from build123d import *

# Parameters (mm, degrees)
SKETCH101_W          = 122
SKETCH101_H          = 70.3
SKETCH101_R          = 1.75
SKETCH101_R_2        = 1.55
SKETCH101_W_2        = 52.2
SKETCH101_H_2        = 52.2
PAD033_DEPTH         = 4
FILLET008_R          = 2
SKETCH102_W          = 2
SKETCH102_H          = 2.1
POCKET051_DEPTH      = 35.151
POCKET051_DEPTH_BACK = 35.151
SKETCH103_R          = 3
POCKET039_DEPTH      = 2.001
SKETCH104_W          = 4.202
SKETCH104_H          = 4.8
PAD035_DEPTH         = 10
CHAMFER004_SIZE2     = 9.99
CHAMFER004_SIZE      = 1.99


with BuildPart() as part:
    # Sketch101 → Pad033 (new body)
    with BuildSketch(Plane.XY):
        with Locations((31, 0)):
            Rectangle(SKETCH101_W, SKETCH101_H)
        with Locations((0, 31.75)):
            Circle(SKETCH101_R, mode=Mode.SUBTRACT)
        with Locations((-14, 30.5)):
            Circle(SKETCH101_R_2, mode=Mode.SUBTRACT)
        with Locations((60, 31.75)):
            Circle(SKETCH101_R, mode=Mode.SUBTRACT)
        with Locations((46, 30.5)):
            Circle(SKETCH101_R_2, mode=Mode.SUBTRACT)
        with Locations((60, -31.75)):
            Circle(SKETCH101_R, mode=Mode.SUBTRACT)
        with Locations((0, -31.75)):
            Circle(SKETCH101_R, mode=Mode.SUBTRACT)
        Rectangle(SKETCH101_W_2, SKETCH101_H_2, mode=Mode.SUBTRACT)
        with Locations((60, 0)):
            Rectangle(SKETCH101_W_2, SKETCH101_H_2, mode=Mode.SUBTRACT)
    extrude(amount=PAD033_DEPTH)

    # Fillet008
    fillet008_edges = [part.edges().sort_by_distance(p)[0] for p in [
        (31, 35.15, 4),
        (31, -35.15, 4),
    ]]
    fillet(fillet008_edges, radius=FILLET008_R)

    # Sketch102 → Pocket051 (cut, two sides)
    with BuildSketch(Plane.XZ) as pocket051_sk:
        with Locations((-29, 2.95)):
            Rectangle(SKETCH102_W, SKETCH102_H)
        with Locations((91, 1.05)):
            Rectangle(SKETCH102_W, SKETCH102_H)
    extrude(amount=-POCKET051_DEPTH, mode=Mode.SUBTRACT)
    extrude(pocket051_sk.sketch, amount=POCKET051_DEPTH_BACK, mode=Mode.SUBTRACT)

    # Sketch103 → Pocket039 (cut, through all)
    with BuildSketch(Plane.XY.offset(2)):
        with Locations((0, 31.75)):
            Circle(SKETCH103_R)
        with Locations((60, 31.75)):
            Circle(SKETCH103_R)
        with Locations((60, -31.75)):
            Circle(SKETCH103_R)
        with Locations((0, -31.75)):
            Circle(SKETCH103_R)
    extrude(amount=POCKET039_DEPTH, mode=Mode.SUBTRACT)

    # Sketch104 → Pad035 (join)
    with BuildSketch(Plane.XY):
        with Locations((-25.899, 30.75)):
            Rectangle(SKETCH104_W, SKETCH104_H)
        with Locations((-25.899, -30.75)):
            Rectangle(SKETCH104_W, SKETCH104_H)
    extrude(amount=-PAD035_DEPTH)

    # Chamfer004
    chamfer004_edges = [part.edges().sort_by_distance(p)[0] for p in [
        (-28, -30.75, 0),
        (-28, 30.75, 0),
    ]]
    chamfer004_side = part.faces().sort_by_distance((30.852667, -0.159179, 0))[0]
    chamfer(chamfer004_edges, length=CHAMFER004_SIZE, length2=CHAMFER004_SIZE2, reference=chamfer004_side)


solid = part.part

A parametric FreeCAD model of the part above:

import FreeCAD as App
import Part
import Sketcher


def edges_at(feature, points):
    """Names of the edges that pass closest to the given points."""
    edges = feature.Shape.Edges
    near = lambda p: min(range(len(edges)), key=lambda i: edges[i].distToShape(Part.Vertex(*p))[0])
    return sorted({f"Edge{near(p) + 1}" for p in points})

doc = App.newDocument("Part")
body = doc.addObject("PartDesign::Body", "Body")

# Sketch on XY plane
sketch1 = doc.addObject("Sketcher::SketchObject", "Sketch")
body.addObject(sketch1)
sketch1.AttachmentSupport = (doc.XY_Plane, [""])
sketch1.MapMode = "FlatFace"
sketch1.addGeometry([
    Part.LineSegment(App.Vector(-30, 35.1, 0), App.Vector(-30, -35.1, 0)),  # 0
    Part.LineSegment(App.Vector(-30, -35.1, 0), App.Vector(92, -35.1, 0)),  # 1
    Part.LineSegment(App.Vector(92, -35.1, 0), App.Vector(92, 35.1, 0)),  # 2
    Part.LineSegment(App.Vector(92, 35.1, 0), App.Vector(-30, 35.1, 0)),  # 3
    Part.Circle(App.Vector(0, -31.8, 0), App.Vector(0, 0, 1), 1.8),  # 4
    Part.Circle(App.Vector(60, -31.8, 0), App.Vector(0, 0, 1), 1.8),  # 5
    Part.LineSegment(App.Vector(26.1, -26.1, 0), App.Vector(-26.1, -26.1, 0)),  # 6
    Part.LineSegment(App.Vector(-26.1, -26.1, 0), App.Vector(-26.1, 26.1, 0)),  # 7
    Part.LineSegment(App.Vector(-26.1, 26.1, 0), App.Vector(26.1, 26.1, 0)),  # 8
    Part.LineSegment(App.Vector(26.1, 26.1, 0), App.Vector(26.1, -26.1, 0)),  # 9
    Part.Circle(App.Vector(-14, 30.5, 0), App.Vector(0, 0, 1), 1.6),  # 10
    Part.Circle(App.Vector(0, 31.8, 0), App.Vector(0, 0, 1), 1.8),  # 11
    Part.LineSegment(App.Vector(86.1, -26.1, 0), App.Vector(33.9, -26.1, 0)),  # 12
    Part.LineSegment(App.Vector(33.9, -26.1, 0), App.Vector(33.9, 26.1, 0)),  # 13
    Part.LineSegment(App.Vector(33.9, 26.1, 0), App.Vector(86.1, 26.1, 0)),  # 14
    Part.LineSegment(App.Vector(86.1, 26.1, 0), App.Vector(86.1, -26.1, 0)),  # 15
    Part.Circle(App.Vector(46, 30.5, 0), App.Vector(0, 0, 1), 1.6),  # 16
    Part.Circle(App.Vector(60, 31.8, 0), App.Vector(0, 0, 1), 1.8),  # 17
], False)
sketch1.addConstraint([
    Sketcher.Constraint("Coincident", 0, 2, 1, 1),
    Sketcher.Constraint("Coincident", 1, 2, 2, 1),
    Sketcher.Constraint("Coincident", 2, 2, 3, 1),
    Sketcher.Constraint("Coincident", 3, 2, 0, 1),
    Sketcher.Constraint("Coincident", 6, 2, 7, 1),
    Sketcher.Constraint("Coincident", 7, 2, 8, 1),
    Sketcher.Constraint("Coincident", 8, 2, 9, 1),
    Sketcher.Constraint("Coincident", 9, 2, 6, 1),
    Sketcher.Constraint("Coincident", 12, 2, 13, 1),
    Sketcher.Constraint("Coincident", 13, 2, 14, 1),
    Sketcher.Constraint("Coincident", 14, 2, 15, 1),
    Sketcher.Constraint("Coincident", 15, 2, 12, 1),
    Sketcher.Constraint("Vertical", 0),
    Sketcher.Constraint("Horizontal", 1),
    Sketcher.Constraint("Vertical", 2),
    Sketcher.Constraint("Horizontal", 3),
    Sketcher.Constraint("Horizontal", 6),
    Sketcher.Constraint("Vertical", 7),
    Sketcher.Constraint("Horizontal", 8),
    Sketcher.Constraint("Vertical", 9),
    Sketcher.Constraint("Horizontal", 12),
    Sketcher.Constraint("Vertical", 13),
    Sketcher.Constraint("Horizontal", 14),
    Sketcher.Constraint("Vertical", 15),
    Sketcher.Constraint("Equal", 4, 5),
    Sketcher.Constraint("Equal", 5, 11),
    Sketcher.Constraint("Equal", 10, 16),
    Sketcher.Constraint("Equal", 11, 17),
    Sketcher.Constraint("Symmetric", 4, 3, 11, 3, -1, 1),
    Sketcher.Constraint("Symmetric", 6, 2, 8, 2, -1, 1),
    Sketcher.Constraint("Symmetric", 5, 3, 17, 3, -1),
    Sketcher.Constraint("PointOnObject", 4, 3, -2),
    Sketcher.Constraint("Horizontal", 4, 3, 5, 3),
    Sketcher.Constraint("Horizontal", 10, 3, 16, 3),
    Sketcher.Constraint("Horizontal", 9, 2, 12, 2),
    Sketcher.Constraint("Horizontal", 8, 2, 13, 2),
    Sketcher.Constraint("Equal", 8, 12),
    Sketcher.Constraint("Equal", 14, 7),
    Sketcher.Constraint("Diameter", 4, 3.5),
    Sketcher.Constraint("Diameter", 10, 3.1),
    Sketcher.Constraint("DistanceX", 1, 1, 1, 2, 122.0),
    Sketcher.Constraint("DistanceX", 6, 2, 6, 1, 52.2),
    Sketcher.Constraint("DistanceY", 0, 2, 0, 1, 70.3),
    Sketcher.Constraint("DistanceX", -1, 1, 5, 3, 60.0),
    Sketcher.Constraint("DistanceX", 10, 3, -1, 1, 14.0),
    Sketcher.Constraint("DistanceX", -1, 1, 16, 3, 46.0),
    Sketcher.Constraint("DistanceX", 0, 2, -1, 1, 30.0),
    Sketcher.Constraint("DistanceX", 8, 2, 14, 2, 60.0),
    Sketcher.Constraint("DistanceY", -1, 1, 10, 3, 30.5),
    Sketcher.Constraint("DistanceY", 4, 3, 11, 3, 63.5),
    Sketcher.Constraint("DistanceY", 0, 2, 4, 3, 3.4),
])
pad1 = doc.addObject("PartDesign::Pad", "Pad")
body.addObject(pad1)
pad1.Profile = sketch1
pad1.Length = 4
doc.recompute()

fillet = doc.addObject("PartDesign::Fillet", "Fillet")
body.addObject(fillet)
fillet.Base = (pad1, edges_at(pad1, [(31, 35.15, 4), (31, -35.15, 4)]))
fillet.Radius = 2

# Sketch on XZ plane
sketch2 = doc.addObject("Sketcher::SketchObject", "Sketch001")
body.addObject(sketch2)
sketch2.AttachmentSupport = (doc.XZ_Plane, [""])
sketch2.MapMode = "FlatFace"
sketch2.addGeometry([
    Part.LineSegment(App.Vector(-30, 4, 0), App.Vector(-30, 1.9, 0)),  # 0
    Part.LineSegment(App.Vector(-30, 1.9, 0), App.Vector(-28, 1.9, 0)),  # 1
    Part.LineSegment(App.Vector(-28, 1.9, 0), App.Vector(-28, 4, 0)),  # 2
    Part.LineSegment(App.Vector(-28, 4, 0), App.Vector(-30, 4, 0)),  # 3
    Part.LineSegment(App.Vector(90, 2.1, 0), App.Vector(90, 0, 0)),  # 4
    Part.LineSegment(App.Vector(90, 0, 0), App.Vector(92, 0, 0)),  # 5
    Part.LineSegment(App.Vector(92, 0, 0), App.Vector(92, 2.1, 0)),  # 6
    Part.LineSegment(App.Vector(92, 2.1, 0), App.Vector(90, 2.1, 0)),  # 7
], False)
sketch2.addConstraint([
    Sketcher.Constraint("Coincident", 0, 2, 1, 1),
    Sketcher.Constraint("Coincident", 1, 2, 2, 1),
    Sketcher.Constraint("Coincident", 2, 2, 3, 1),
    Sketcher.Constraint("Coincident", 3, 2, 0, 1),
    Sketcher.Constraint("Coincident", 4, 2, 5, 1),
    Sketcher.Constraint("Coincident", 5, 2, 6, 1),
    Sketcher.Constraint("Coincident", 6, 2, 7, 1),
    Sketcher.Constraint("Coincident", 7, 2, 4, 1),
    Sketcher.Constraint("Vertical", 0),
    Sketcher.Constraint("Horizontal", 1),
    Sketcher.Constraint("Vertical", 2),
    Sketcher.Constraint("Horizontal", 3),
    Sketcher.Constraint("Vertical", 4),
    Sketcher.Constraint("Horizontal", 5),
    Sketcher.Constraint("Vertical", 6),
    Sketcher.Constraint("Horizontal", 7),
    Sketcher.Constraint("PointOnObject", 4, 2, -1),
    Sketcher.Constraint("Equal", 3, 5),
    Sketcher.Constraint("Equal", 2, 4),
    Sketcher.Constraint("DistanceX", 1, 1, 1, 2, 2.0),
    Sketcher.Constraint("DistanceY", 0, 2, 0, 1, 2.1),
    Sketcher.Constraint("DistanceX", 0, 2, -1, 1, 30.0),
    Sketcher.Constraint("DistanceY", -1, 1, 2, 2, 4.0),
    Sketcher.Constraint("DistanceX", -1, 1, 4, 2, 90.0),
])
pocket1 = doc.addObject("PartDesign::Pocket", "Pocket")
body.addObject(pocket1)
pocket1.Profile = sketch2
pocket1.Type = "ThroughAll"
pocket1.Midplane = True

# Sketch on XY plane
sketch3 = doc.addObject("Sketcher::SketchObject", "Sketch002")
body.addObject(sketch3)
sketch3.AttachmentSupport = (doc.XY_Plane, [""])
sketch3.MapMode = "FlatFace"
sketch3.AttachmentOffset = App.Placement(App.Vector(0, 0, 2), App.Rotation())
sketch3.addGeometry([
    Part.Circle(App.Vector(0, 31.8, 0), App.Vector(0, 0, 1), 3),
    Part.Circle(App.Vector(60, 31.8, 0), App.Vector(0, 0, 1), 3),
    Part.Circle(App.Vector(60, -31.8, 0), App.Vector(0, 0, 1), 3),
    Part.Circle(App.Vector(0, -31.8, 0), App.Vector(0, 0, 1), 3),
], False)
sketch3.addConstraint([
    Sketcher.Constraint("Equal", 0, 1),
    Sketcher.Constraint("Equal", 1, 2),
    Sketcher.Constraint("Equal", 2, 3),
    Sketcher.Constraint("Symmetric", 0, 3, 3, 3, -1, 1),
    Sketcher.Constraint("Symmetric", 1, 3, 2, 3, -1),
    Sketcher.Constraint("PointOnObject", 0, 3, -2),
    Sketcher.Constraint("Horizontal", 0, 3, 1, 3),
    Sketcher.Constraint("Diameter", 0, 6.0),
    Sketcher.Constraint("DistanceX", -1, 1, 1, 3, 60.0),
    Sketcher.Constraint("DistanceY", 2, 3, 1, 3, 63.5),
])
pocket2 = doc.addObject("PartDesign::Pocket", "Pocket001")
body.addObject(pocket2)
pocket2.Profile = sketch3
pocket2.Type = "ThroughAll"
pocket2.Reversed = True

# Sketch on XY plane
sketch4 = doc.addObject("Sketcher::SketchObject", "Sketch003")
body.addObject(sketch4)
sketch4.AttachmentSupport = (doc.XY_Plane, [""])
sketch4.MapMode = "FlatFace"
sketch4.addGeometry([
    Part.LineSegment(App.Vector(-28, 33.1, 0), App.Vector(-28, 28.4, 0)),  # 0
    Part.LineSegment(App.Vector(-28, 28.4, 0), App.Vector(-23.8, 28.4, 0)),  # 1
    Part.LineSegment(App.Vector(-23.8, 28.4, 0), App.Vector(-23.8, 33.1, 0)),  # 2
    Part.LineSegment(App.Vector(-23.8, 33.1, 0), App.Vector(-28, 33.1, 0)),  # 3
    Part.LineSegment(App.Vector(-28, -28.4, 0), App.Vector(-28, -33.1, 0)),  # 4
    Part.LineSegment(App.Vector(-28, -33.1, 0), App.Vector(-23.8, -33.1, 0)),  # 5
    Part.LineSegment(App.Vector(-23.8, -33.1, 0), App.Vector(-23.8, -28.4, 0)),  # 6
    Part.LineSegment(App.Vector(-23.8, -28.4, 0), App.Vector(-28, -28.4, 0)),  # 7
], False)
sketch4.addConstraint([
    Sketcher.Constraint("Coincident", 0, 2, 1, 1),
    Sketcher.Constraint("Coincident", 1, 2, 2, 1),
    Sketcher.Constraint("Coincident", 2, 2, 3, 1),
    Sketcher.Constraint("Coincident", 3, 2, 0, 1),
    Sketcher.Constraint("Coincident", 4, 2, 5, 1),
    Sketcher.Constraint("Coincident", 5, 2, 6, 1),
    Sketcher.Constraint("Coincident", 6, 2, 7, 1),
    Sketcher.Constraint("Coincident", 7, 2, 4, 1),
    Sketcher.Constraint("Vertical", 0),
    Sketcher.Constraint("Horizontal", 1),
    Sketcher.Constraint("Vertical", 2),
    Sketcher.Constraint("Horizontal", 3),
    Sketcher.Constraint("Vertical", 4),
    Sketcher.Constraint("Horizontal", 5),
    Sketcher.Constraint("Vertical", 6),
    Sketcher.Constraint("Horizontal", 7),
    Sketcher.Constraint("Symmetric", 3, 2, 4, 2, -1),
    Sketcher.Constraint("Symmetric", 1, 2, 6, 2, -1),
    Sketcher.Constraint("DistanceY", 0, 2, 0, 1, 4.8),
    Sketcher.Constraint("DistanceX", 0, 2, -1, 1, 28.0),
    Sketcher.Constraint("DistanceY", 4, 2, 0, 2, 61.5),
    Sketcher.Constraint("DistanceX", 1, 1, 1, 2, 4.202),
])
pad2 = doc.addObject("PartDesign::Pad", "Pad001")
body.addObject(pad2)
pad2.Profile = sketch4
pad2.Length = 10
pad2.Reversed = True
doc.recompute()

chamfer = doc.addObject("PartDesign::Chamfer", "Chamfer")
body.addObject(chamfer)
chamfer.Base = (pad2, edges_at(pad2, [(-28, -30.75, 0), (-28, 30.75, 0)]))
chamfer.ChamferType = "Two distances"
chamfer.Size = 1.99
chamfer.Size2 = 9.99

doc.recompute()
